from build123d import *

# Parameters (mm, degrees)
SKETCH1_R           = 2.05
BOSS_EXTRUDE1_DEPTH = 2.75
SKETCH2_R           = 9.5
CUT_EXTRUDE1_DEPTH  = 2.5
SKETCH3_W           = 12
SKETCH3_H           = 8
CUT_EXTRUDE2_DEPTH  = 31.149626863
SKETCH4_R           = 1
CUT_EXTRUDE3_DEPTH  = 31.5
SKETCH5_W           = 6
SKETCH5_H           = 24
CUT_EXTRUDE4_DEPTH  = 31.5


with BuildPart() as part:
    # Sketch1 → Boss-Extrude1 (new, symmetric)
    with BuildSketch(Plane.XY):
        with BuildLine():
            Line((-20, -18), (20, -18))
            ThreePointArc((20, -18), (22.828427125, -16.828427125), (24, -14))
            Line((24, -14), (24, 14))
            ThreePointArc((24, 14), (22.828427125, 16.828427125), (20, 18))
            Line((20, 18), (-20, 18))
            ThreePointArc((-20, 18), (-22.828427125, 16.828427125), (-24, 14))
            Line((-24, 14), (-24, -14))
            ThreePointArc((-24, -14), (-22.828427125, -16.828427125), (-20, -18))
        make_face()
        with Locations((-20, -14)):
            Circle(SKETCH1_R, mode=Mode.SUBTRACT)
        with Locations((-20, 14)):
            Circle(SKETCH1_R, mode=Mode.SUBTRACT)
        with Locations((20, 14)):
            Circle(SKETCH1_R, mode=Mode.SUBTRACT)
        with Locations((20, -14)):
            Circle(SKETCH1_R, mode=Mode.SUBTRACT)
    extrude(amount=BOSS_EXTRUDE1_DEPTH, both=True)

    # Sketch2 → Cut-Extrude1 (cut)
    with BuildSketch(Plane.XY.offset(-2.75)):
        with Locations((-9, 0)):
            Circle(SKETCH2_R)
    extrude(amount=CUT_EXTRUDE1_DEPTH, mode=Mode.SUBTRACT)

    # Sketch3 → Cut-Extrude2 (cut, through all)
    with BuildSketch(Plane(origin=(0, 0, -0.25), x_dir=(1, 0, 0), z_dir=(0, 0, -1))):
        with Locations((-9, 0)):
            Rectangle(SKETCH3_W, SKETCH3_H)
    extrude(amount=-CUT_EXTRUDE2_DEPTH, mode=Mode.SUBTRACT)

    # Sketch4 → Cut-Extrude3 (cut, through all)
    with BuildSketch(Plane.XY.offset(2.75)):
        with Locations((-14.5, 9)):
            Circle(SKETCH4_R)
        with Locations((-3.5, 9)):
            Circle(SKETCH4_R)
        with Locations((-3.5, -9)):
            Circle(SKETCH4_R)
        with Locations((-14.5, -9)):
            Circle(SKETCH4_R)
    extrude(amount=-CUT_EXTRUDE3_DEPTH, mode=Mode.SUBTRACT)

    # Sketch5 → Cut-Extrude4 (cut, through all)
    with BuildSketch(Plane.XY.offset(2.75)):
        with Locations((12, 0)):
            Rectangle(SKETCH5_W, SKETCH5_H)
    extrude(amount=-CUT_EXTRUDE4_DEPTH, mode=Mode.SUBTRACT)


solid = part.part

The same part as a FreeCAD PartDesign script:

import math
import FreeCAD as App
import Part
import Sketcher

doc = App.newDocument("Part")
body = doc.addObject("PartDesign::Body", "Body")

sketch1 = body.newObject("Sketcher::SketchObject", "Sketch")
sketch1.AttachmentSupport = (doc.getObject("XY_Plane"), [""])
sketch1.MapMode = "FlatFace"
sketch1.addGeometry(Part.LineSegment(App.Vector(-20, -18, 0), App.Vector(20, -18, 0)), False)
sketch1.addGeometry(Part.ArcOfCircle(Part.Circle(App.Vector(20, -14, 0), App.Vector(0, 0, 1), 4), math.radians(-90), math.radians(0)), False)
sketch1.addGeometry(Part.LineSegment(App.Vector(24, -14, 0), App.Vector(24, 14, 0)), False)
sketch1.addGeometry(Part.ArcOfCircle(Part.Circle(App.Vector(20, 14, 0), App.Vector(0, 0, 1), 4), math.radians(0), math.radians(90)), False)
sketch1.addGeometry(Part.LineSegment(App.Vector(20, 18, 0), App.Vector(-20, 18, 0)), False)
sketch1.addGeometry(Part.ArcOfCircle(Part.Circle(App.Vector(-20, 14, 0), App.Vector(0, 0, 1), 4), math.radians(90), math.radians(180)), False)
sketch1.addGeometry(Part.LineSegment(App.Vector(-24, 14, 0), App.Vector(-24, -14, 0)), False)
sketch1.addGeometry(Part.ArcOfCircle(Part.Circle(App.Vector(-20, -14, 0), App.Vector(0, 0, 1), 4), math.radians(180), math.radians(270)), False)
sketch1.addGeometry(Part.Circle(App.Vector(-20, -14, 0), App.Vector(0, 0, 1), 2), False)
sketch1.addGeometry(Part.Circle(App.Vector(20, -14, 0), App.Vector(0, 0, 1), 2), False)
sketch1.addGeometry(Part.Circle(App.Vector(-20, 14, 0), App.Vector(0, 0, 1), 2), False)
sketch1.addGeometry(Part.Circle(App.Vector(20, 14, 0), App.Vector(0, 0, 1), 2), False)
sketch1.addConstraint(Sketcher.Constraint("Tangent", 0, 2, 1, 1))
sketch1.addConstraint(Sketcher.Constraint("Tangent", 1, 2, 2, 1))
sketch1.addConstraint(Sketcher.Constraint("Tangent", 2, 2, 3, 1))
sketch1.addConstraint(Sketcher.Constraint("Tangent", 3, 2, 4, 1))
sketch1.addConstraint(Sketcher.Constraint("Tangent", 4, 2, 5, 1))
sketch1.addConstraint(Sketcher.Constraint("Tangent", 5, 2, 6, 1))
sketch1.addConstraint(Sketcher.Constraint("Tangent", 6, 2, 7, 1))
sketch1.addConstraint(Sketcher.Constraint("Tangent", 7, 2, 0, 1))
sketch1.addConstraint(Sketcher.Constraint("Horizontal", 0))
sketch1.addConstraint(Sketcher.Constraint("Vertical", 2))
sketch1.addConstraint(Sketcher.Constraint("Horizontal", 4))
sketch1.addConstraint(Sketcher.Constraint("Vertical", 6))
sketch1.addConstraint(Sketcher.Constraint("Coincident", 8, 3, 7, 3))
sketch1.addConstraint(Sketcher.Constraint("Coincident", 9, 3, 1, 3))
sketch1.addConstraint(Sketcher.Constraint("Coincident", 10, 3, 5, 3))
sketch1.addConstraint(Sketcher.Constraint("Coincident", 11, 3, 3, 3))
sketch1.addConstraint(Sketcher.Constraint("Equal", 1, 3))
sketch1.addConstraint(Sketcher.Constraint("Equal", 3, 5))
sketch1.addConstraint(Sketcher.Constraint("Equal", 5, 7))
sketch1.addConstraint(Sketcher.Constraint("Equal", 8, 9))
sketch1.addConstraint(Sketcher.Constraint("Equal", 9, 10))
sketch1.addConstraint(Sketcher.Constraint("Equal", 10, 11))
sketch1.addConstraint(Sketcher.Constraint("Symmetric", 1, 3, 5, 3, -1, 1))
sketch1.addConstraint(Sketcher.Constraint("Radius", 1, 4.0))
sketch1.addConstraint(Sketcher.Constraint("Diameter", 8, 4.1))
sketch1.addConstraint(Sketcher.Constraint("DistanceX", 0, 1, 0, 2, 40.0))
sketch1.addConstraint(Sketcher.Constraint("DistanceY", 2, 1, 2, 2, 28.0))
pad1 = body.newObject("PartDesign::Pad", "Pad")
pad1.Profile = sketch1
pad1.Length = 5.5
pad1.Midplane = True

sketch2 = body.newObject("Sketcher::SketchObject", "Sketch001")
sketch2.AttachmentSupport = (doc.getObject("XY_Plane"), [""])
sketch2.MapMode = "FlatFace"
sketch2.AttachmentOffset = App.Placement(App.Vector(0, 0, -2.75), App.Rotation())
sketch2.addGeometry(Part.Circle(App.Vector(-9, 0, 0), App.Vector(0, 0, 1), 10), False)
sketch2.addConstraint(Sketcher.Constraint("PointOnObject", 0, 3, -1))
sketch2.addConstraint(Sketcher.Constraint("Diameter", 0, 19.0))
sketch2.addConstraint(Sketcher.Constraint("DistanceX", 0, 3, -1, 1, 9.0))
pocket1 = body.newObject("PartDesign::Pocket", "Pocket")
pocket1.Profile = sketch2
pocket1.Length = 2.5
pocket1.Reversed = True

sketch3 = body.newObject("Sketcher::SketchObject", "Sketch002")
sketch3.AttachmentSupport = (doc.getObject("XY_Plane"), [""])
sketch3.MapMode = "FlatFace"
sketch3.AttachmentOffset = App.Placement(App.Vector(0, 0, -0.25), App.Rotation())
sketch3.addGeometry(Part.LineSegment(App.Vector(-15, -4, 0), App.Vector(-15, 4, 0)), False)
sketch3.addGeometry(Part.LineSegment(App.Vector(-15, 4, 0), App.Vector(-3, 4, 0)), False)
sketch3.addGeometry(Part.LineSegment(App.Vector(-3, 4, 0), App.Vector(-3, -4, 0)), False)
sketch3.addGeometry(Part.LineSegment(App.Vector(-3, -4, 0), App.Vector(-15, -4, 0)), False)
sketch3.addConstraint(Sketcher.Constraint("Coincident", 0, 2, 1, 1))
sketch3.addConstraint(Sketcher.Constraint("Coincident", 1, 2, 2, 1))
sketch3.addConstraint(Sketcher.Constraint("Coincident", 2, 2, 3, 1))
sketch3.addConstraint(Sketcher.Constraint("Coincident", 3, 2, 0, 1))
sketch3.addConstraint(Sketcher.Constraint("Vertical", 0))
sketch3.addConstraint(Sketcher.Constraint("Horizontal", 1))
sketch3.addConstraint(Sketcher.Constraint("Vertical", 2))
sketch3.addConstraint(Sketcher.Constraint("Horizontal", 3))
sketch3.addConstraint(Sketcher.Constraint("DistanceX", 1, 1, 1, 2, 12.0))
sketch3.addConstraint(Sketcher.Constraint("DistanceY", 0, 1, 0, 2, 8.0))
sketch3.addConstraint(Sketcher.Constraint("DistanceX", 0, 2, -1, 1, 15.0))
sketch3.addConstraint(Sketcher.Constraint("DistanceY", -1, 1, 0, 2, 4.0))
pocket2 = body.newObject("PartDesign::Pocket", "Pocket001")
pocket2.Profile = sketch3
pocket2.Type = "ThroughAll"
pocket2.Reversed = True

sketch4 = body.newObject("Sketcher::SketchObject", "Sketch003")
sketch4.AttachmentSupport = (doc.getObject("XY_Plane"), [""])
sketch4.MapMode = "FlatFace"
sketch4.AttachmentOffset = App.Placement(App.Vector(0, 0, 2.75), App.Rotation())
sketch4.addGeometry(Part.Circle(App.Vector(-14.5, 9, 0), App.Vector(0, 0, 1), 1), False)
sketch4.addGeometry(Part.Circle(App.Vector(-3.5, 9, 0), App.Vector(0, 0, 1), 1), False)
sketch4.addGeometry(Part.Circle(App.Vector(-3.5, -9, 0), App.Vector(0, 0, 1), 1), False)
sketch4.addGeometry(Part.Circle(App.Vector(-14.5, -9, 0), App.Vector(0, 0, 1), 1), False)
sketch4.addConstraint(Sketcher.Constraint("Equal", 0, 1))
sketch4.addConstraint(Sketcher.Constraint("Equal", 1, 2))
sketch4.addConstraint(Sketcher.Constraint("Equal", 2, 3))
sketch4.addConstraint(Sketcher.Constraint("Symmetric", 1, 3, 2, 3, -1))
sketch4.addConstraint(Sketcher.Constraint("Symmetric", 0, 3, 3, 3, -1))
sketch4.addConstraint(Sketcher.Constraint("Horizontal", 0, 3, 1, 3))
sketch4.addConstraint(Sketcher.Constraint("Diameter", 0, 2.0))
sketch4.addConstraint(Sketcher.Constraint("DistanceY", -1, 1, 0, 3, 9.0))
sketch4.addConstraint(Sketcher.Constraint("DistanceX", 0, 3, 1, 3, 11.0))
sketch4.addConstraint(Sketcher.Constraint("DistanceX", 0, 3, -1, 1, 14.5))
pocket3 = body.newObject("PartDesign::Pocket", "Pocket002")
pocket3.Profile = sketch4
pocket3.Type = "ThroughAll"

sketch5 = body.newObject("Sketcher::SketchObject", "Sketch004")
sketch5.AttachmentSupport = (doc.getObject("XY_Plane"), [""])
sketch5.MapMode = "FlatFace"
sketch5.AttachmentOffset = App.Placement(App.Vector(0, 0, 2.75), App.Rotation())
sketch5.addGeometry(Part.LineSegment(App.Vector(9, 12, 0), App.Vector(9, -12, 0)), False)
sketch5.addGeometry(Part.LineSegment(App.Vector(9, -12, 0), App.Vector(15, -12, 0)), False)
sketch5.addGeometry(Part.LineSegment(App.Vector(15, -12, 0), App.Vector(15, 12, 0)), False)
sketch5.addGeometry(Part.LineSegment(App.Vector(15, 12, 0), App.Vector(9, 12, 0)), False)
sketch5.addConstraint(Sketcher.Constraint("Coincident", 0, 2, 1, 1))
sketch5.addConstraint(Sketcher.Constraint("Coincident", 1, 2, 2, 1))
sketch5.addConstraint(Sketcher.Constraint("Coincident", 2, 2, 3, 1))
sketch5.addConstraint(Sketcher.Constraint("Coincident", 3, 2, 0, 1))
sketch5.addConstraint(Sketcher.Constraint("Vertical", 0))
sketch5.addConstraint(Sketcher.Constraint("Horizontal", 1))
sketch5.addConstraint(Sketcher.Constraint("Vertical", 2))
sketch5.addConstraint(Sketcher.Constraint("Horizontal", 3))
sketch5.addConstraint(Sketcher.Constraint("DistanceX", 1, 1, 1, 2, 6.0))
sketch5.addConstraint(Sketcher.Constraint("DistanceY", 0, 2, 0, 1, 24.0))
sketch5.addConstraint(Sketcher.Constraint("DistanceX", -1, 1, 0, 2, 9.0))
sketch5.addConstraint(Sketcher.Constraint("DistanceY", 0, 2, -1, 1, 12.0))
pocket4 = body.newObject("PartDesign::Pocket", "Pocket003")
pocket4.Profile = sketch5
pocket4.Type = "ThroughAll"

doc.recompute()
